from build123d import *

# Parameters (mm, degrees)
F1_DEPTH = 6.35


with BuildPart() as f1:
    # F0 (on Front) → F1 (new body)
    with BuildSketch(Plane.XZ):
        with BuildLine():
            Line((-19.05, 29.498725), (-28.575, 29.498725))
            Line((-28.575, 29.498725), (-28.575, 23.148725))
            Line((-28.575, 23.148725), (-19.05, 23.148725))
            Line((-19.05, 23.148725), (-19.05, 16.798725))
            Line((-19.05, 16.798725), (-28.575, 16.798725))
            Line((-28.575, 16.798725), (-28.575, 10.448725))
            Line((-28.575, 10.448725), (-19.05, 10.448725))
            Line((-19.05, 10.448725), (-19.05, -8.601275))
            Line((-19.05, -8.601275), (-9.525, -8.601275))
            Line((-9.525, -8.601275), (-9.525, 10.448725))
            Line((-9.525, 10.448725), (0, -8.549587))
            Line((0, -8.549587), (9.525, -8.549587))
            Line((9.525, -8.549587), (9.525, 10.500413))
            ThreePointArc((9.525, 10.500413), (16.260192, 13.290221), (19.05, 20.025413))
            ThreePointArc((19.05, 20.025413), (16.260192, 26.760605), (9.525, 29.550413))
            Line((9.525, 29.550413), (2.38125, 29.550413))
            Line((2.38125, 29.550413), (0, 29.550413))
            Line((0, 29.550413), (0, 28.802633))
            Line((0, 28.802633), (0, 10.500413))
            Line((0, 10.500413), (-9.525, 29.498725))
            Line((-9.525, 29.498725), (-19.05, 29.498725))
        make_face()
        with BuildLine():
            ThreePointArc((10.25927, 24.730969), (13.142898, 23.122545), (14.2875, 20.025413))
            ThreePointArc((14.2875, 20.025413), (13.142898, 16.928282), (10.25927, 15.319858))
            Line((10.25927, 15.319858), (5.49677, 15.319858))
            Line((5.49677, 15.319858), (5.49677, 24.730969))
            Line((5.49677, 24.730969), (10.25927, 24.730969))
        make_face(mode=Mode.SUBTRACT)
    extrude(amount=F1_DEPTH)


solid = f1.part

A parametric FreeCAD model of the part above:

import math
import FreeCAD as App
import Part
import Sketcher
from FreeCAD import Vector
Q = App.Units.Quantity

doc = App.newDocument("Part")
body = doc.addObject("PartDesign::Body", "Body")

# Sketch on XZ plane
sketch1 = body.newObject("Sketcher::SketchObject", "Sketch")
sketch1.AttachmentSupport = (doc.getObject("XZ_Plane"), [""])
sketch1.MapMode = "FlatFace"
sketch1.addGeometry(Part.LineSegment(Vector(-28.6, 29.5, 0), Vector(-28.6, 23.1, 0)), False)
sketch1.addGeometry(Part.LineSegment(Vector(-28.6, 23.1, 0), Vector(-19.1, 23.1, 0)), False)
sketch1.addGeometry(Part.LineSegment(Vector(-19.1, 23.1, 0), Vector(-19.1, 16.8, 0)), False)
sketch1.addGeometry(Part.LineSegment(Vector(-19.1, 16.8, 0), Vector(-28.6, 16.8, 0)), False)
sketch1.addGeometry(Part.LineSegment(Vector(-28.6, 16.8, 0), Vector(-28.6, 10.4, 0)), False)
sketch1.addGeometry(Part.LineSegment(Vector(-28.6, 10.4, 0), Vector(-19.1, 10.4, 0)), False)
sketch1.addGeometry(Part.LineSegment(Vector(-19.1, 10.4, 0), Vector(-19.1, -8.6, 0)), False)
sketch1.addGeometry(Part.LineSegment(Vector(-19.1, -8.6, 0), Vector(-9.5, -8.6, 0)), False)
sketch1.addGeometry(Part.LineSegment(Vector(-9.5, -8.6, 0), Vector(-9.5, 10.4, 0)), False)
sketch1.addGeometry(Part.LineSegment(Vector(-9.5, 10.4, 0), Vector(0, -8.5, 0)), False)
sketch1.addGeometry(Part.LineSegment(Vector(0, -8.5, 0), Vector(9.5, -8.5, 0)), False)
sketch1.addGeometry(Part.LineSegment(Vector(9.5, -8.5, 0), Vector(9.5, 10.5, 0)), False)
sketch1.addGeometry(Part.ArcOfCircle(Part.Circle(Vector(9.5, 20, 0), Vector(0, 0, 1), 9.5), math.radians(-90), math.radians(0)), False)
sketch1.addGeometry(Part.ArcOfCircle(Part.Circle(Vector(9.5, 20, 0), Vector(0, 0, 1), 9.5), math.radians(0), math.radians(90)), False)
sketch1.addGeometry(Part.LineSegment(Vector(9.5, 29.6, 0), Vector(0, 29.6, 0)), False)
sketch1.addGeometry(Part.LineSegment(Vector(0, 29.6, 0), Vector(0, 10.5, 0)), False)
sketch1.addGeometry(Part.LineSegment(Vector(0, 10.5, 0), Vector(-9.5, 29.5, 0)), False)
sketch1.addGeometry(Part.LineSegment(Vector(-9.5, 29.5, 0), Vector(-28.6, 29.5, 0)), False)
sketch1.addGeometry(Part.LineSegment(Vector(5.5, 24.7, 0), Vector(10.3, 24.7, 0)), False)
sketch1.addGeometry(Part.ArcOfCircle(Part.Circle(Vector(9.5, 20, 0), Vector(0, 0, 1), 4.8), math.radians(0), math.radians(81)), False)
sketch1.addGeometry(Part.ArcOfCircle(Part.Circle(Vector(9.5, 20, 0), Vector(0, 0, 1), 4.8), math.radians(-81), math.radians(0)), False)
sketch1.addGeometry(Part.LineSegment(Vector(10.3, 15.3, 0), Vector(5.5, 15.3, 0)), False)
sketch1.addGeometry(Part.LineSegment(Vector(5.5, 15.3, 0), Vector(5.5, 24.7, 0)), False)
sketch1.addConstraint(Sketcher.Constraint("Coincident", 0, 2, 1, 1))
sketch1.addConstraint(Sketcher.Constraint("Coincident", 1, 2, 2, 1))
sketch1.addConstraint(Sketcher.Constraint("Coincident", 2, 2, 3, 1))
sketch1.addConstraint(Sketcher.Constraint("Coincident", 3, 2, 4, 1))
sketch1.addConstraint(Sketcher.Constraint("Coincident", 4, 2, 5, 1))
sketch1.addConstraint(Sketcher.Constraint("Coincident", 5, 2, 6, 1))
sketch1.addConstraint(Sketcher.Constraint("Coincident", 6, 2, 7, 1))
sketch1.addConstraint(Sketcher.Constraint("Coincident", 7, 2, 8, 1))
sketch1.addConstraint(Sketcher.Constraint("Coincident", 8, 2, 9, 1))
sketch1.addConstraint(Sketcher.Constraint("Coincident", 9, 2, 10, 1))
sketch1.addConstraint(Sketcher.Constraint("Coincident", 10, 2, 11, 1))
sketch1.addConstraint(Sketcher.Constraint("Coincident", 11, 2, 12, 1))
sketch1.addConstraint(Sketcher.Constraint("Tangent", 12, 2, 13, 1))
sketch1.addConstraint(Sketcher.Constraint("Tangent", 13, 2, 14, 1))
sketch1.addConstraint(Sketcher.Constraint("Coincident", 14, 2, 15, 1))
sketch1.addConstraint(Sketcher.Constraint("Coincident", 15, 2, 16, 1))
sketch1.addConstraint(Sketcher.Constraint("Coincident", 16, 2, 17, 1))
sketch1.addConstraint(Sketcher.Constraint("Coincident", 17, 2, 0, 1))
sketch1.addConstraint(Sketcher.Constraint("Coincident", 18, 2, 19, 2))
sketch1.addConstraint(Sketcher.Constraint("Tangent", 19, 1, 20, 2))
sketch1.addConstraint(Sketcher.Constraint("Coincident", 20, 1, 21, 1))
sketch1.addConstraint(Sketcher.Constraint("Coincident", 21, 2, 22, 1))
sketch1.addConstraint(Sketcher.Constraint("Coincident", 22, 2, 18, 1))
sketch1.addConstraint(Sketcher.Constraint("Vertical", 0))
sketch1.addConstraint(Sketcher.Constraint("Horizontal", 1))
sketch1.addConstraint(Sketcher.Constraint("Vertical", 2))
sketch1.addConstraint(Sketcher.Constraint("Horizontal", 3))
sketch1.addConstraint(Sketcher.Constraint("Vertical", 4))
sketch1.addConstraint(Sketcher.Constraint("Horizontal", 5))
sketch1.addConstraint(Sketcher.Constraint("Vertical", 6))
sketch1.addConstraint(Sketcher.Constraint("Horizontal", 7))
sketch1.addConstraint(Sketcher.Constraint("Vertical", 8))
sketch1.addConstraint(Sketcher.Constraint("Horizontal", 10))
sketch1.addConstraint(Sketcher.Constraint("Vertical", 11))
sketch1.addConstraint(Sketcher.Constraint("Horizontal", 14))
sketch1.addConstraint(Sketcher.Constraint("Vertical", 15))
sketch1.addConstraint(Sketcher.Constraint("Horizontal", 17))
sketch1.addConstraint(Sketcher.Constraint("Horizontal", 18))
sketch1.addConstraint(Sketcher.Constraint("Horizontal", 21))
sketch1.addConstraint(Sketcher.Constraint("Vertical", 22))
sketch1.addConstraint(Sketcher.Constraint("Coincident", 19, 3, 12, 3))
sketch1.addConstraint(Sketcher.Constraint("Equal", 12, 13))
sketch1.addConstraint(Sketcher.Constraint("Equal", 19, 20))
sketch1.addConstraint(Sketcher.Constraint("PointOnObject", 9, 2, -2))
sketch1.addConstraint(Sketcher.Constraint("PointOnObject", 14, 2, -2))
sketch1.addConstraint(Sketcher.Constraint("Parallel", 9, 16))
sketch1.addConstraint(Sketcher.Constraint("Horizontal", 5, 2, 8, 2))
sketch1.addConstraint(Sketcher.Constraint("Horizontal", 20, 3, 12, 2))
sketch1.addConstraint(Sketcher.Constraint("Horizontal", 11, 2, 15, 2))
sketch1.addConstraint(Sketcher.Constraint("Horizontal", 12, 2, 19, 1))
sketch1.addConstraint(Sketcher.Constraint("Vertical", 0, 2, 3, 2))
sketch1.addConstraint(Sketcher.Constraint("Vertical", 2, 2, 5, 2))
sketch1.addConstraint(Sketcher.Constraint("Vertical", 20, 3, 10, 2))
sketch1.addConstraint(Sketcher.Constraint("Vertical", 8, 2, 16, 2))
sketch1.addConstraint(Sketcher.Constraint("Vertical", 18, 2, 20, 1))
sketch1.addConstraint(Sketcher.Constraint("Equal", 5, 7))
sketch1.addConstraint(Sketcher.Constraint("Equal", 7, 10))
sketch1.addConstraint(Sketcher.Constraint("Equal", 0, 2))
sketch1.addConstraint(Sketcher.Constraint("Equal", 2, 4))
sketch1.addConstraint(Sketcher.Constraint("Equal", 17, 6))
sketch1.addConstraint(Sketcher.Constraint("Equal", 8, 11))
sketch1.addConstraint(Sketcher.Constraint("Equal", 11, 15))
sketch1.addConstraint(Sketcher.Constraint("Radius", 12, Q("0.375 in")))
sketch1.addConstraint(Sketcher.Constraint("Radius", 19, Q("0.1874999 in")))
sketch1.addConstraint(Sketcher.Constraint("DistanceX", 0, 2, 12, 3, Q("1.5 in")))
sketch1.addConstraint(Sketcher.Constraint("DistanceX", 18, 1, 18, 2, Q("0.1875 in")))
sketch1.addConstraint(Sketcher.Constraint("DistanceY", 22, 1, 22, 2, 9.411111))
sketch1.addConstraint(Sketcher.Constraint("Distance", 9, 21.252329))
sketch1.addConstraint(Sketcher.Constraint("DistanceY", -1, 1, 18, 2, 24.730969))
pad1 = body.newObject("PartDesign::Pad", "Pad")
pad1.Profile = sketch1
pad1.Length = Q("0.25 in")

doc.recompute()
